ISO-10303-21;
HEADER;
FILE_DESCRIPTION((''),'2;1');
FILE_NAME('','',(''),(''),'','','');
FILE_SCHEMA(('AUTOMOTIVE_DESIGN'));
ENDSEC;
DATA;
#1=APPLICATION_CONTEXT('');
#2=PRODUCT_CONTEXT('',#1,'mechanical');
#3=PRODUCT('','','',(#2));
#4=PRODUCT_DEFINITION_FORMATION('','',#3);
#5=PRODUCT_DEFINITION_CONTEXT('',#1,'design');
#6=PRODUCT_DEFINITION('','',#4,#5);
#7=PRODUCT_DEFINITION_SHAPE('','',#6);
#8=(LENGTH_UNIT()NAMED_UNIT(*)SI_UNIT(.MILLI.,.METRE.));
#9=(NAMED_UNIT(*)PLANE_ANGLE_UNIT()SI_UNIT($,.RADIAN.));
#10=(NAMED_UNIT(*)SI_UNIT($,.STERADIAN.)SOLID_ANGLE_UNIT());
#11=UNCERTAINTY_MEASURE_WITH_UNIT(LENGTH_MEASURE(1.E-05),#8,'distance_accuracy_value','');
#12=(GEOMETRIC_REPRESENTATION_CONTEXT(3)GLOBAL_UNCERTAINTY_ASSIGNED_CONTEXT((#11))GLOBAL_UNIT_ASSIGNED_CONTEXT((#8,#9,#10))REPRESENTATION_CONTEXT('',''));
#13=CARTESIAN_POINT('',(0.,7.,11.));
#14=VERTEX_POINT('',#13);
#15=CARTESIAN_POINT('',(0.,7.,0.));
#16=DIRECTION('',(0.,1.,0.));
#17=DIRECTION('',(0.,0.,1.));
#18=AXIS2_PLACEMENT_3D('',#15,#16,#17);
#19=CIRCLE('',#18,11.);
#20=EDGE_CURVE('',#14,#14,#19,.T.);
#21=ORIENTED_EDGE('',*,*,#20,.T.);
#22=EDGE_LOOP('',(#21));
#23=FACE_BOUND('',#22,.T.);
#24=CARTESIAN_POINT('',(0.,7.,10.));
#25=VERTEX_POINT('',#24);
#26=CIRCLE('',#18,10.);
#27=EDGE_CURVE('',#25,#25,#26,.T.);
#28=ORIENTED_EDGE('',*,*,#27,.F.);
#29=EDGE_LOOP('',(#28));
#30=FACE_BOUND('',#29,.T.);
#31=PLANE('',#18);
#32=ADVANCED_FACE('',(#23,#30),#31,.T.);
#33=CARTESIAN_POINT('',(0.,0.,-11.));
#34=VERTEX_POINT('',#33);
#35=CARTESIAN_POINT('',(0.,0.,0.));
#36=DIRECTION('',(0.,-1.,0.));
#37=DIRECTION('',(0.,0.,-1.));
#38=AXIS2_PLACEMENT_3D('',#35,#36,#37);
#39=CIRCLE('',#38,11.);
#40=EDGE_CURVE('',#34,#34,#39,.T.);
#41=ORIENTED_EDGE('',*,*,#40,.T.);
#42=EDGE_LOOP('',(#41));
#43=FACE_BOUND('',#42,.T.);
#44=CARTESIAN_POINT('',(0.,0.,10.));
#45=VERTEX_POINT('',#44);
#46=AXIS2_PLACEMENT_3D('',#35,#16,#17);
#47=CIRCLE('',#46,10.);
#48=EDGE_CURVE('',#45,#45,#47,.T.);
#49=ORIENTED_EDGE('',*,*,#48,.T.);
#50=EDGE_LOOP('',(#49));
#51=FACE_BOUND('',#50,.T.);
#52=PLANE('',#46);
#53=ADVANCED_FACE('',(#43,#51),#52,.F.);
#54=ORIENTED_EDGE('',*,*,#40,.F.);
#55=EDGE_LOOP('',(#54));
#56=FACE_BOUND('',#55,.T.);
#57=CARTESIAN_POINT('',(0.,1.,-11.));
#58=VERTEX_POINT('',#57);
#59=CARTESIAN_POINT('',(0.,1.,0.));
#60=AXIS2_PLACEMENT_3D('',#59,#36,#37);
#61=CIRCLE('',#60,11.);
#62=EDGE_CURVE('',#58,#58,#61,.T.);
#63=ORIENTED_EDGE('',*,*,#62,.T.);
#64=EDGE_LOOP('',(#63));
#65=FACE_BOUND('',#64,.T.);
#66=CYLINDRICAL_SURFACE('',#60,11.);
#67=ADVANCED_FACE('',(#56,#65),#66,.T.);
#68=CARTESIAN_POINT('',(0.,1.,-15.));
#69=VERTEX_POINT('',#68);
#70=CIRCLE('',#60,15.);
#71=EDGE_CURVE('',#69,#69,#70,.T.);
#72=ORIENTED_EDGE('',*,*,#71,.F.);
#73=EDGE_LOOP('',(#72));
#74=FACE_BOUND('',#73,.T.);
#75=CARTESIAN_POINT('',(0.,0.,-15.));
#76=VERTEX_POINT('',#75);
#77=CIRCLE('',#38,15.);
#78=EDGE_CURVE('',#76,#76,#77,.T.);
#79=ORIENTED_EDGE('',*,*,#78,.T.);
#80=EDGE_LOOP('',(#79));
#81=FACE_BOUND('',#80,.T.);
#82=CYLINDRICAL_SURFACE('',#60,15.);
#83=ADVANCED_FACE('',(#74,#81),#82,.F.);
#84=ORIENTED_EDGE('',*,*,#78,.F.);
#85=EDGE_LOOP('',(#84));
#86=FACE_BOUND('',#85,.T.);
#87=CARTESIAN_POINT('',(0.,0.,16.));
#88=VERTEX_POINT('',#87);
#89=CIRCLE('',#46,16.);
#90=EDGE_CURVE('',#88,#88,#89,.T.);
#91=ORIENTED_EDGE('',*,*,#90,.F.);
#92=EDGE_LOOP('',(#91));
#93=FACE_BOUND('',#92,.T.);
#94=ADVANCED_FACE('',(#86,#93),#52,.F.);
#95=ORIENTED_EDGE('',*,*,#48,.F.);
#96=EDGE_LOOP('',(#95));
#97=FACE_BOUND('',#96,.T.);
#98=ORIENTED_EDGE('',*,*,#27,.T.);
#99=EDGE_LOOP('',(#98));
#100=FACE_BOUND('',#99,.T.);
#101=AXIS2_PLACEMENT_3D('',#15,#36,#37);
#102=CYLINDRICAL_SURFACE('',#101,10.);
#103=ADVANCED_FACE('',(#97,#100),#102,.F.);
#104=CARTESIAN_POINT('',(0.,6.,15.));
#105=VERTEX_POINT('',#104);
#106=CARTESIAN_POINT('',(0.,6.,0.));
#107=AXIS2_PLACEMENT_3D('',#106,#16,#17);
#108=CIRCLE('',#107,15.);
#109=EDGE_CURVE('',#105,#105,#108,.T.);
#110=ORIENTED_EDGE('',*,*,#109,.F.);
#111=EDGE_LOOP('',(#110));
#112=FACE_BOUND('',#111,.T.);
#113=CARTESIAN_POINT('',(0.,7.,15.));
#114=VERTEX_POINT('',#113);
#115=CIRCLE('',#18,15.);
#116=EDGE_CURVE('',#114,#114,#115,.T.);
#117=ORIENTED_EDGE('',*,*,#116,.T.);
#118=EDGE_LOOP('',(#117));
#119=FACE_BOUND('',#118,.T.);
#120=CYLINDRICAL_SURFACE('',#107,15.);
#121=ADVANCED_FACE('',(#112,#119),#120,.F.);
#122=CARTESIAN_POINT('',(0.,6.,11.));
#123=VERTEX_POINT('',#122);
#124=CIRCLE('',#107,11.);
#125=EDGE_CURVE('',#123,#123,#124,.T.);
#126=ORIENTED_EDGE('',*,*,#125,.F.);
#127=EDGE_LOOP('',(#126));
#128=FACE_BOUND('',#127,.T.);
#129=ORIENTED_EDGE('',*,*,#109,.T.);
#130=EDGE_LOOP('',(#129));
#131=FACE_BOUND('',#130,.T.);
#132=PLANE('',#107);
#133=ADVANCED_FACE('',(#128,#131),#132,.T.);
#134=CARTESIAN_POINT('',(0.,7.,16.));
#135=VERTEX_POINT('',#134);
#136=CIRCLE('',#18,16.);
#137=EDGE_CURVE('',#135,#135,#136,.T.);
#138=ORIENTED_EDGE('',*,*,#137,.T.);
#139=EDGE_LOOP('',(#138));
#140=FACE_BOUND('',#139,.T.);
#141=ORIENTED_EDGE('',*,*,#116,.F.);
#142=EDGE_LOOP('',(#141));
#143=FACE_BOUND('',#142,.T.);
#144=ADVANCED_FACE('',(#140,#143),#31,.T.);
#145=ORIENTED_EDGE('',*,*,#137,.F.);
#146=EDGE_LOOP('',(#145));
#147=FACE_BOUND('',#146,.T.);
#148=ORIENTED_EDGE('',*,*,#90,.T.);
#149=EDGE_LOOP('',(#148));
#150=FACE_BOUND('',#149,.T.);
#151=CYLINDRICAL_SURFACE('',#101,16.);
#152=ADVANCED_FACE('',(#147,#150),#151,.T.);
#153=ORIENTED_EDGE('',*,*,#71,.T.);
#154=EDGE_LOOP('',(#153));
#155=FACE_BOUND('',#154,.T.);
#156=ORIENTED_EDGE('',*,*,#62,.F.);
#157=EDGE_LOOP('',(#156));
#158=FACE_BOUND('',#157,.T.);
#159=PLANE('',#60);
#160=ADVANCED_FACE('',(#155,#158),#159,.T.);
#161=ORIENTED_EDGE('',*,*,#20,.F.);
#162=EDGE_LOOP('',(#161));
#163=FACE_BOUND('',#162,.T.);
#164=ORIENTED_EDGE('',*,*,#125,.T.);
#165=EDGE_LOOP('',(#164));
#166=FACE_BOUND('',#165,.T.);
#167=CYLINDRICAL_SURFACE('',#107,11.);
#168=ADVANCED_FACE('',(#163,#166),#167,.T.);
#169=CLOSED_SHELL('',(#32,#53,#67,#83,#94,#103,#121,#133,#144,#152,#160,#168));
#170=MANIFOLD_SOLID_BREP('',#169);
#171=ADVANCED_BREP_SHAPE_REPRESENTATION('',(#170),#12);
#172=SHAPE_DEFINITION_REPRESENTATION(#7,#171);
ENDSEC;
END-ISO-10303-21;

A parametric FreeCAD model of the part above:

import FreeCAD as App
import Part
import Sketcher

V = App.Vector

doc = App.newDocument("Part")
body = doc.addObject("PartDesign::Body", "Body")

sketch1 = body.newObject("Sketcher::SketchObject", "Sketch")
sketch1.AttachmentSupport = (doc.getObject("XZ_Plane"), [""])
sketch1.MapMode = "FlatFace"
sketch1.addGeometry([
    Part.Circle(V(0, 0, 0), V(0, 0, 1), 16),
    Part.Circle(V(0, 0, 0), V(0, 0, 1), 10),
], False)
sketch1.addConstraint([
    Sketcher.Constraint("Coincident", 0, 3, -1, 1),
    Sketcher.Constraint("Coincident", 1, 3, -1, 1),
    Sketcher.Constraint("Diameter", 0, 32.0),
    Sketcher.Constraint("Diameter", 1, 20.0),
])
pad1 = body.newObject("PartDesign::Pad", "Pad")
pad1.Profile = sketch1
pad1.Length = 7
pad1.Reversed = True

sketch2 = body.newObject("Sketcher::SketchObject", "Sketch001")
sketch2.AttachmentSupport = (doc.getObject("XZ_Plane"), [""])
sketch2.MapMode = "FlatFace"
sketch2.AttachmentOffset = App.Placement(V(0, 0, -7), App.Rotation())
sketch2.addGeometry([
    Part.Circle(V(0, 0, 0), V(0, 0, 1), 15),
    Part.Circle(V(0, 0, 0), V(0, 0, 1), 11),
], False)
sketch2.addConstraint([
    Sketcher.Constraint("Coincident", 0, 3, -1, 1),
    Sketcher.Constraint("Coincident", 1, 3, -1, 1),
    Sketcher.Constraint("Diameter", 0, 30.0),
    Sketcher.Constraint("Diameter", 1, 22.0),
])
pocket1 = body.newObject("PartDesign::Pocket", "Pocket")
pocket1.Profile = sketch2
pocket1.Length = 1
pocket1.Reversed = True

sketch3 = body.newObject("Sketcher::SketchObject", "Sketch002")
sketch3.AttachmentSupport = (doc.getObject("XZ_Plane"), [""])
sketch3.MapMode = "FlatFace"
sketch3.AttachmentOffset = App.Placement(V(0, 0, -1), App.Rotation())
sketch3.addGeometry([
    Part.Circle(V(0, 0, 0), V(0, 0, 1), 15),
    Part.Circle(V(0, 0, 0), V(0, 0, 1), 11),
], False)
sketch3.addConstraint([
    Sketcher.Constraint("Coincident", 0, 3, -1, 1),
    Sketcher.Constraint("Coincident", 1, 3, -1, 1),
    Sketcher.Constraint("Diameter", 0, 30.0),
    Sketcher.Constraint("Diameter", 1, 22.0),
])
pocket2 = body.newObject("PartDesign::Pocket", "Pocket001")
pocket2.Profile = sketch3
pocket2.Length = 1
pocket2.Reversed = True

doc.recompute()
